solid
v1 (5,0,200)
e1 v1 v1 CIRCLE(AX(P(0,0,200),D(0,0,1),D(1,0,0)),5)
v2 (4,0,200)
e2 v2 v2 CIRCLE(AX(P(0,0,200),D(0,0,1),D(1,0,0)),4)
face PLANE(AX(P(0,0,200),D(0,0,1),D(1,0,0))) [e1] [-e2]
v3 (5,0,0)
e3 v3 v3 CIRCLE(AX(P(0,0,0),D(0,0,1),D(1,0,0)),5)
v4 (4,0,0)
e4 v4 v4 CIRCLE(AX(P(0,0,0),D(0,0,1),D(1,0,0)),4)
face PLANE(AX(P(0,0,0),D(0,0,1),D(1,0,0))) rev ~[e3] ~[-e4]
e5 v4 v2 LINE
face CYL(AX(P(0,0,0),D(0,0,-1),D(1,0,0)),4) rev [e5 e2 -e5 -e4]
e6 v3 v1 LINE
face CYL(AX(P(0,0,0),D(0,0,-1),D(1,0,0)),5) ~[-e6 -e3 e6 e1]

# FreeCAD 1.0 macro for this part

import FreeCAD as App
import Part
import Sketcher
from FreeCAD import Vector

doc = App.newDocument("Part")
body = doc.addObject("PartDesign::Body", "Body")

sketch1 = body.newObject("Sketcher::SketchObject", "Sketch")
sketch1.AttachmentSupport = (doc.getObject("XY_Plane"), [""])
sketch1.MapMode = "FlatFace"
sketch1.addGeometry([
    Part.Circle(Vector(0, 0, 0), Vector(0, 0, 1), 5),
    Part.Circle(Vector(0, 0, 0), Vector(0, 0, 1), 4),
], False)
sketch1.addConstraint([
    Sketcher.Constraint("Coincident", 0, 3, -1, 1),
    Sketcher.Constraint("Coincident", 1, 3, -1, 1),
    Sketcher.Constraint("Diameter", 0, 10.0),
    Sketcher.Constraint("Diameter", 1, 8.0),
])
pad1 = body.newObject("PartDesign::Pad", "Pad")
pad1.Profile = sketch1
pad1.Length = 200

doc.recompute()
